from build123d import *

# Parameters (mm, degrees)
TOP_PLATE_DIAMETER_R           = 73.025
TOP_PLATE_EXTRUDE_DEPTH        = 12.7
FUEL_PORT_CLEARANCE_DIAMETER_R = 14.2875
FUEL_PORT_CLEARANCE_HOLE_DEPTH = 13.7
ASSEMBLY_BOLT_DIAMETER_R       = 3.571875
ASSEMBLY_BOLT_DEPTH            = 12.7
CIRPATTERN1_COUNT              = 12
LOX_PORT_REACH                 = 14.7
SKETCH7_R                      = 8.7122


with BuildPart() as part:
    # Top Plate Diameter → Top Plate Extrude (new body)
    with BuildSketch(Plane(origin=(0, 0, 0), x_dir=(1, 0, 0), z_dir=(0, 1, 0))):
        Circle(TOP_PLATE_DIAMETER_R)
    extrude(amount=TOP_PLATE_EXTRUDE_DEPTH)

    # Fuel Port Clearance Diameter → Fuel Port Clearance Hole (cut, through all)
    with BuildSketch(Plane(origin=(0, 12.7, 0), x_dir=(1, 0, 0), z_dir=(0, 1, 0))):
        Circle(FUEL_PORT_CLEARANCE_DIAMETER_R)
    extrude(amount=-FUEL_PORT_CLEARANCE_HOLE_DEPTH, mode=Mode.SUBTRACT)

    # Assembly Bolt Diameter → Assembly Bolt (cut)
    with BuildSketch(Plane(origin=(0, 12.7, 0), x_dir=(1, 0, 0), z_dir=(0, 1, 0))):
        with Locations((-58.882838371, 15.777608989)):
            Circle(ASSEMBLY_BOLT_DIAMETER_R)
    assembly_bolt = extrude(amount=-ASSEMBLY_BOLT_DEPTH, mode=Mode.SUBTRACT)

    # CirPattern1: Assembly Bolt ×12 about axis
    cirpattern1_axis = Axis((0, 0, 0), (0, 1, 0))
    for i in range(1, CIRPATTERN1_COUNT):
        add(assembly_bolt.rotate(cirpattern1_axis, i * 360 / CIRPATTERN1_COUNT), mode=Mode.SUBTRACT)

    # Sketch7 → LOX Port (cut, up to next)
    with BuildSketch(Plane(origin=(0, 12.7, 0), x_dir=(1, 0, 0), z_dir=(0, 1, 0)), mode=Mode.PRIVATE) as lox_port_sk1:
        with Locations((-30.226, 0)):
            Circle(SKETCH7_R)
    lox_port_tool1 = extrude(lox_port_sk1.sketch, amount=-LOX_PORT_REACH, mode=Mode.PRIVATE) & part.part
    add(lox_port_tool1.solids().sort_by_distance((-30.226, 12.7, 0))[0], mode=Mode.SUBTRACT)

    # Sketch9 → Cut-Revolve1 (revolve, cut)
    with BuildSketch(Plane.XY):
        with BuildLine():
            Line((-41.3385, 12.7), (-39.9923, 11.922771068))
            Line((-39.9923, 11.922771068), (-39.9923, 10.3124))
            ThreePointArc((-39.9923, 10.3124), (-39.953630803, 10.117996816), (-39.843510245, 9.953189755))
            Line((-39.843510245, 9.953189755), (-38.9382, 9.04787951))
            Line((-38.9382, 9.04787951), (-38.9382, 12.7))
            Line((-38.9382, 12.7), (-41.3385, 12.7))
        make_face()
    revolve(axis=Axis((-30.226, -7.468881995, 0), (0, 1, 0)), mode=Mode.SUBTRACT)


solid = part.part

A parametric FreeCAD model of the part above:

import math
import FreeCAD as App
import Part
import Sketcher
from FreeCAD import Vector
Q = App.Units.Quantity

doc = App.newDocument("Part")
params = doc.addObject("Spreadsheet::Sheet", "Params")
for row, (alias, value) in enumerate([
    ("sketch1_diameter", "5.75 in"),
    ("pad1_length", "0.5 in"),
    ("sketch2_diameter", "1.125 in"),
    ("sketch3_diameter", "0.28125 in"),
    ("pocket2_length", "0.5 in"),
    ("sketch4_diameter", "0.686 in"),
    ("sketch5_radius", "0.02 in"),
    ("groove_angle", "360 deg"),
], start=1):
    params.set(f"A{row}", alias)
    params.set(f"B{row}", "=" + value)
    params.setAlias(f"B{row}", alias)

body = doc.addObject("PartDesign::Body", "Body")

sketch1 = body.newObject("Sketcher::SketchObject", "Sketch")
sketch1.AttachmentSupport = (doc.getObject("XZ_Plane"), [""])
sketch1.MapMode = "FlatFace"
sketch1.addGeometry(Part.Circle(Vector(0, 0, 0), Vector(0, 0, 1), 73), False)
sketch1.addConstraint([
    Sketcher.Constraint("Coincident", 0, 3, -1, 1),
    Sketcher.Constraint("Diameter", 0, Q("5.75 in")),
])
sketch1.setExpression("Constraints[1]", "Params.sketch1_diameter")
pad1 = body.newObject("PartDesign::Pad", "Pad")
pad1.Profile = sketch1
pad1.setExpression("Length", "Params.pad1_length")
pad1.Reversed = True

sketch2 = body.newObject("Sketcher::SketchObject", "Sketch001")
sketch2.AttachmentSupport = (doc.getObject("XZ_Plane"), [""])
sketch2.MapMode = "FlatFace"
sketch2.AttachmentOffset = App.Placement(Vector(0, 0, -0.5 * 25.4), App.Rotation())
sketch2.addGeometry(Part.Circle(Vector(0, 0, 0), Vector(0, 0, 1), 14), False)
sketch2.addConstraint([
    Sketcher.Constraint("Coincident", 0, 3, -1, 1),
    Sketcher.Constraint("Diameter", 0, Q("1.125 in")),
])
sketch2.setExpression("Constraints[1]", "Params.sketch2_diameter")
pocket1 = body.newObject("PartDesign::Pocket", "Pocket")
pocket1.Profile = sketch2
pocket1.Type = "ThroughAll"
pocket1.Reversed = True

sketch3 = body.newObject("Sketcher::SketchObject", "Sketch002")
sketch3.AttachmentSupport = (doc.getObject("XZ_Plane"), [""])
sketch3.MapMode = "FlatFace"
sketch3.AttachmentOffset = App.Placement(Vector(0, 0, -0.5 * 25.4), App.Rotation())
sketch3.addGeometry(Part.Circle(Vector(-58.9, -15.8, 0), Vector(0, 0, 1), 3.6), False)
sketch3.addConstraint([
    Sketcher.Constraint("Diameter", 0, Q("0.28125 in")),
    Sketcher.Constraint("DistanceX", 0, 3, -1, 1, 58.882838),
    Sketcher.Constraint("DistanceY", 0, 3, -1, 1, 15.777609),
])
sketch3.setExpression("Constraints[0]", "Params.sketch3_diameter")
pocket2 = body.newObject("PartDesign::Pocket", "Pocket001")
pocket2.Profile = sketch3
pocket2.setExpression("Length", "Params.pocket2_length")
pocket2.Reversed = True
doc.recompute()

polarpattern = body.newObject("PartDesign::PolarPattern", "PolarPattern")
polarpattern.Originals = [pocket2]
polarpattern.Axis = (doc.getObject("Y_Axis"), [""])
polarpattern.Angle = 360
polarpattern.Occurrences = 12
body.Tip = polarpattern

sketch4 = body.newObject("Sketcher::SketchObject", "Sketch003")
sketch4.AttachmentSupport = (doc.getObject("XZ_Plane"), [""])
sketch4.MapMode = "FlatFace"
sketch4.AttachmentOffset = App.Placement(Vector(0, 0, -0.5 * 25.4), App.Rotation())
sketch4.addGeometry(Part.Circle(Vector(-30, 0, 0), Vector(0, 0, 1), 9), False)
sketch4.addConstraint([
    Sketcher.Constraint("PointOnObject", 0, 3, -1),
    Sketcher.Constraint("Diameter", 0, Q("0.686 in")),
    Sketcher.Constraint("DistanceX", 0, 3, -1, 1, Q("1.19 in")),
])
sketch4.setExpression("Constraints[1]", "Params.sketch4_diameter")
pocket3 = body.newObject("PartDesign::Pocket", "Pocket002")
pocket3.Profile = sketch4
pocket3.Type = "UpToFirst"
pocket3.Reversed = True

sketch5 = body.newObject("Sketcher::SketchObject", "Sketch004")
sketch5.AttachmentSupport = (doc.getObject("XY_Plane"), [""])
sketch5.MapMode = "FlatFace"
sketch5.addGeometry([
    Part.LineSegment(Vector(-41.34, 12.7, 0), Vector(-39.99, 11.92, 0)),
    Part.LineSegment(Vector(-39.99, 11.92, 0), Vector(-39.99, 10.31, 0)),
    Part.ArcOfCircle(Part.Circle(Vector(-39.48, 10.31, 0), Vector(0, 0, 1), 0.51), math.radians(180), math.radians(225)),
    Part.LineSegment(Vector(-39.84, 9.95, 0), Vector(-38.94, 9.05, 0)),
    Part.LineSegment(Vector(-38.94, 9.05, 0), Vector(-38.94, 12.7, 0)),
    Part.LineSegment(Vector(-38.94, 12.7, 0), Vector(-41.34, 12.7, 0)),
], False)
sketch5.addGeometry(Part.LineSegment(Vector(-30.23, 9.05, 0), Vector(-30.23, 12.7, 0)), True)
sketch5.addConstraint([
    Sketcher.Constraint("Coincident", 0, 2, 1, 1),
    Sketcher.Constraint("Tangent", 1, 2, 2, 1),
    Sketcher.Constraint("Tangent", 2, 2, 3, 1),
    Sketcher.Constraint("Coincident", 3, 2, 4, 1),
    Sketcher.Constraint("Coincident", 4, 2, 5, 1),
    Sketcher.Constraint("Coincident", 5, 2, 0, 1),
    Sketcher.Constraint("Vertical", 1),
    Sketcher.Constraint("Vertical", 4),
    Sketcher.Constraint("Horizontal", 5),
    Sketcher.Constraint("Vertical", 6),
    Sketcher.Constraint("Horizontal", 3, 2, 6, 1),
    Sketcher.Constraint("Horizontal", 5, 2, 6, 2),
    Sketcher.Constraint("Radius", 2, Q("0.02 in")),
    Sketcher.Constraint("Angle", 0, Q("-30 deg")),
    Sketcher.Constraint("Angle", 3, Q("-45 deg")),
    Sketcher.Constraint("DistanceY", -1, 1, 4, 2, Q("0.5 in")),
    Sketcher.Constraint("DistanceX", 6, 1, -1, 1, Q("1.19 in")),
    Sketcher.Constraint("DistanceX", 5, 2, 5, 1, Q("0.0945 in")),
    Sketcher.Constraint("DistanceY", -1, 1, 2, 3, Q("0.406 in")),
    Sketcher.Constraint("DistanceX", 3, 2, -1, 1, Q("1.533 in")),
    Sketcher.Constraint("DistanceX", 5, 2, 0, 2, Q("0.053 in")),
])
sketch5.setExpression("Constraints[12]", "Params.sketch5_radius")
groove = body.newObject("PartDesign::Groove", "Groove")
groove.Profile = sketch5
groove.ReferenceAxis = (sketch5, ["Axis0"])
groove.setExpression("Angle", "Params.groove_angle")

doc.recompute()
